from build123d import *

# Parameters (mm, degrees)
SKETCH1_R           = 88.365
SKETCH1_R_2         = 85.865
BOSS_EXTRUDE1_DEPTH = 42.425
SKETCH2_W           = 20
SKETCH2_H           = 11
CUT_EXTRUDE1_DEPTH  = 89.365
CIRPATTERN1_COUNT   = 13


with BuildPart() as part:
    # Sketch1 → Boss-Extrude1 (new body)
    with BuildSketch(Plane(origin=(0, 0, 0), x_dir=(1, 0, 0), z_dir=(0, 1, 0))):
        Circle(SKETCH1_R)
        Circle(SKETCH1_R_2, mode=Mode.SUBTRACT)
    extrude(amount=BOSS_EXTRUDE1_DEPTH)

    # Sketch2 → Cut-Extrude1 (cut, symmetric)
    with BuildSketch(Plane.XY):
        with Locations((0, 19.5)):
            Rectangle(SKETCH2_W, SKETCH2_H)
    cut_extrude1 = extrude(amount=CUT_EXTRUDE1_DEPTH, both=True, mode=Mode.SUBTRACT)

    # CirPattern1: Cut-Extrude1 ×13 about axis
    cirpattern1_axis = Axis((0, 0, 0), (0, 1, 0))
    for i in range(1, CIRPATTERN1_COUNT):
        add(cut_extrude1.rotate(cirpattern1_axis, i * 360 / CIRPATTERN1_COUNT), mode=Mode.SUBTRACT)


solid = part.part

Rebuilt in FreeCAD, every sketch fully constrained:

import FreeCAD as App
import Part
import Sketcher

V = App.Vector
Q = App.Units.Quantity


def add_polygon(sketch, points):
    """Adds a closed chain of lines whose ends are joined by coincident constraints."""
    first, n = sketch.GeometryCount, len(points)
    for a, b in zip(points, points[1:] + points[:1]):
        sketch.addGeometry(Part.LineSegment(App.Vector(*a, 0), App.Vector(*b, 0)), False)
    for i in range(n):
        sketch.addConstraint(Sketcher.Constraint("Coincident", first + i, 2, first + (i + 1) % n, 1))

doc = App.newDocument("Part")
body = doc.addObject("PartDesign::Body", "Body")

# Sketch on XZ plane
sketch1 = body.newObject("Sketcher::SketchObject", "Sketch")
sketch1.AttachmentSupport = (doc.getObject("XZ_Plane"), [""])
sketch1.MapMode = "FlatFace"
sketch1.addGeometry(Part.Circle(V(0, 0, 0), V(0, 0, 1), 88.365), False)
sketch1.addGeometry(Part.Circle(V(0, 0, 0), V(0, 0, 1), 85.865), False)
sketch1.addConstraint(Sketcher.Constraint("Coincident", 0, 3, -1, 1))
sketch1.addConstraint(Sketcher.Constraint("Coincident", 1, 3, -1, 1))
sketch1.addConstraint(Sketcher.Constraint("Diameter", 0, Q("176.73 mm")))
sketch1.addConstraint(Sketcher.Constraint("Diameter", 1, Q("171.73 mm")))
pad1 = body.newObject("PartDesign::Pad", "Pad")
pad1.Profile = sketch1
pad1.Length = 42.425
pad1.Reversed = True

# Sketch on XY plane
sketch2 = body.newObject("Sketcher::SketchObject", "Sketch001")
sketch2.AttachmentSupport = (doc.getObject("XY_Plane"), [""])
sketch2.MapMode = "FlatFace"
add_polygon(sketch2, [(-10, 25), (-10, 14), (10, 14), (10, 25)])  # lines 0-3
sketch2.addConstraint(Sketcher.Constraint("Vertical", 0))
sketch2.addConstraint(Sketcher.Constraint("Horizontal", 1))
sketch2.addConstraint(Sketcher.Constraint("Vertical", 2))
sketch2.addConstraint(Sketcher.Constraint("Horizontal", 3))
sketch2.addConstraint(Sketcher.Constraint("DistanceX", 1, 1, 1, 2, Q("20 mm")))
sketch2.addConstraint(Sketcher.Constraint("DistanceY", 0, 2, 0, 1, Q("11 mm")))
sketch2.addConstraint(Sketcher.Constraint("DistanceX", 0, 2, -1, 1, Q("10 mm")))
sketch2.addConstraint(Sketcher.Constraint("DistanceY", -1, 1, 0, 2, Q("14 mm")))
pocket1 = body.newObject("PartDesign::Pocket", "Pocket")
pocket1.Profile = sketch2
pocket1.Length = 178.73
pocket1.Midplane = True
doc.recompute()

polarpattern = body.newObject("PartDesign::PolarPattern", "PolarPattern")
polarpattern.Originals = [pocket1]
polarpattern.Axis = (doc.getObject("Y_Axis"), [""])
polarpattern.Angle = 360
polarpattern.Occurrences = 13
body.Tip = polarpattern

doc.recompute()
